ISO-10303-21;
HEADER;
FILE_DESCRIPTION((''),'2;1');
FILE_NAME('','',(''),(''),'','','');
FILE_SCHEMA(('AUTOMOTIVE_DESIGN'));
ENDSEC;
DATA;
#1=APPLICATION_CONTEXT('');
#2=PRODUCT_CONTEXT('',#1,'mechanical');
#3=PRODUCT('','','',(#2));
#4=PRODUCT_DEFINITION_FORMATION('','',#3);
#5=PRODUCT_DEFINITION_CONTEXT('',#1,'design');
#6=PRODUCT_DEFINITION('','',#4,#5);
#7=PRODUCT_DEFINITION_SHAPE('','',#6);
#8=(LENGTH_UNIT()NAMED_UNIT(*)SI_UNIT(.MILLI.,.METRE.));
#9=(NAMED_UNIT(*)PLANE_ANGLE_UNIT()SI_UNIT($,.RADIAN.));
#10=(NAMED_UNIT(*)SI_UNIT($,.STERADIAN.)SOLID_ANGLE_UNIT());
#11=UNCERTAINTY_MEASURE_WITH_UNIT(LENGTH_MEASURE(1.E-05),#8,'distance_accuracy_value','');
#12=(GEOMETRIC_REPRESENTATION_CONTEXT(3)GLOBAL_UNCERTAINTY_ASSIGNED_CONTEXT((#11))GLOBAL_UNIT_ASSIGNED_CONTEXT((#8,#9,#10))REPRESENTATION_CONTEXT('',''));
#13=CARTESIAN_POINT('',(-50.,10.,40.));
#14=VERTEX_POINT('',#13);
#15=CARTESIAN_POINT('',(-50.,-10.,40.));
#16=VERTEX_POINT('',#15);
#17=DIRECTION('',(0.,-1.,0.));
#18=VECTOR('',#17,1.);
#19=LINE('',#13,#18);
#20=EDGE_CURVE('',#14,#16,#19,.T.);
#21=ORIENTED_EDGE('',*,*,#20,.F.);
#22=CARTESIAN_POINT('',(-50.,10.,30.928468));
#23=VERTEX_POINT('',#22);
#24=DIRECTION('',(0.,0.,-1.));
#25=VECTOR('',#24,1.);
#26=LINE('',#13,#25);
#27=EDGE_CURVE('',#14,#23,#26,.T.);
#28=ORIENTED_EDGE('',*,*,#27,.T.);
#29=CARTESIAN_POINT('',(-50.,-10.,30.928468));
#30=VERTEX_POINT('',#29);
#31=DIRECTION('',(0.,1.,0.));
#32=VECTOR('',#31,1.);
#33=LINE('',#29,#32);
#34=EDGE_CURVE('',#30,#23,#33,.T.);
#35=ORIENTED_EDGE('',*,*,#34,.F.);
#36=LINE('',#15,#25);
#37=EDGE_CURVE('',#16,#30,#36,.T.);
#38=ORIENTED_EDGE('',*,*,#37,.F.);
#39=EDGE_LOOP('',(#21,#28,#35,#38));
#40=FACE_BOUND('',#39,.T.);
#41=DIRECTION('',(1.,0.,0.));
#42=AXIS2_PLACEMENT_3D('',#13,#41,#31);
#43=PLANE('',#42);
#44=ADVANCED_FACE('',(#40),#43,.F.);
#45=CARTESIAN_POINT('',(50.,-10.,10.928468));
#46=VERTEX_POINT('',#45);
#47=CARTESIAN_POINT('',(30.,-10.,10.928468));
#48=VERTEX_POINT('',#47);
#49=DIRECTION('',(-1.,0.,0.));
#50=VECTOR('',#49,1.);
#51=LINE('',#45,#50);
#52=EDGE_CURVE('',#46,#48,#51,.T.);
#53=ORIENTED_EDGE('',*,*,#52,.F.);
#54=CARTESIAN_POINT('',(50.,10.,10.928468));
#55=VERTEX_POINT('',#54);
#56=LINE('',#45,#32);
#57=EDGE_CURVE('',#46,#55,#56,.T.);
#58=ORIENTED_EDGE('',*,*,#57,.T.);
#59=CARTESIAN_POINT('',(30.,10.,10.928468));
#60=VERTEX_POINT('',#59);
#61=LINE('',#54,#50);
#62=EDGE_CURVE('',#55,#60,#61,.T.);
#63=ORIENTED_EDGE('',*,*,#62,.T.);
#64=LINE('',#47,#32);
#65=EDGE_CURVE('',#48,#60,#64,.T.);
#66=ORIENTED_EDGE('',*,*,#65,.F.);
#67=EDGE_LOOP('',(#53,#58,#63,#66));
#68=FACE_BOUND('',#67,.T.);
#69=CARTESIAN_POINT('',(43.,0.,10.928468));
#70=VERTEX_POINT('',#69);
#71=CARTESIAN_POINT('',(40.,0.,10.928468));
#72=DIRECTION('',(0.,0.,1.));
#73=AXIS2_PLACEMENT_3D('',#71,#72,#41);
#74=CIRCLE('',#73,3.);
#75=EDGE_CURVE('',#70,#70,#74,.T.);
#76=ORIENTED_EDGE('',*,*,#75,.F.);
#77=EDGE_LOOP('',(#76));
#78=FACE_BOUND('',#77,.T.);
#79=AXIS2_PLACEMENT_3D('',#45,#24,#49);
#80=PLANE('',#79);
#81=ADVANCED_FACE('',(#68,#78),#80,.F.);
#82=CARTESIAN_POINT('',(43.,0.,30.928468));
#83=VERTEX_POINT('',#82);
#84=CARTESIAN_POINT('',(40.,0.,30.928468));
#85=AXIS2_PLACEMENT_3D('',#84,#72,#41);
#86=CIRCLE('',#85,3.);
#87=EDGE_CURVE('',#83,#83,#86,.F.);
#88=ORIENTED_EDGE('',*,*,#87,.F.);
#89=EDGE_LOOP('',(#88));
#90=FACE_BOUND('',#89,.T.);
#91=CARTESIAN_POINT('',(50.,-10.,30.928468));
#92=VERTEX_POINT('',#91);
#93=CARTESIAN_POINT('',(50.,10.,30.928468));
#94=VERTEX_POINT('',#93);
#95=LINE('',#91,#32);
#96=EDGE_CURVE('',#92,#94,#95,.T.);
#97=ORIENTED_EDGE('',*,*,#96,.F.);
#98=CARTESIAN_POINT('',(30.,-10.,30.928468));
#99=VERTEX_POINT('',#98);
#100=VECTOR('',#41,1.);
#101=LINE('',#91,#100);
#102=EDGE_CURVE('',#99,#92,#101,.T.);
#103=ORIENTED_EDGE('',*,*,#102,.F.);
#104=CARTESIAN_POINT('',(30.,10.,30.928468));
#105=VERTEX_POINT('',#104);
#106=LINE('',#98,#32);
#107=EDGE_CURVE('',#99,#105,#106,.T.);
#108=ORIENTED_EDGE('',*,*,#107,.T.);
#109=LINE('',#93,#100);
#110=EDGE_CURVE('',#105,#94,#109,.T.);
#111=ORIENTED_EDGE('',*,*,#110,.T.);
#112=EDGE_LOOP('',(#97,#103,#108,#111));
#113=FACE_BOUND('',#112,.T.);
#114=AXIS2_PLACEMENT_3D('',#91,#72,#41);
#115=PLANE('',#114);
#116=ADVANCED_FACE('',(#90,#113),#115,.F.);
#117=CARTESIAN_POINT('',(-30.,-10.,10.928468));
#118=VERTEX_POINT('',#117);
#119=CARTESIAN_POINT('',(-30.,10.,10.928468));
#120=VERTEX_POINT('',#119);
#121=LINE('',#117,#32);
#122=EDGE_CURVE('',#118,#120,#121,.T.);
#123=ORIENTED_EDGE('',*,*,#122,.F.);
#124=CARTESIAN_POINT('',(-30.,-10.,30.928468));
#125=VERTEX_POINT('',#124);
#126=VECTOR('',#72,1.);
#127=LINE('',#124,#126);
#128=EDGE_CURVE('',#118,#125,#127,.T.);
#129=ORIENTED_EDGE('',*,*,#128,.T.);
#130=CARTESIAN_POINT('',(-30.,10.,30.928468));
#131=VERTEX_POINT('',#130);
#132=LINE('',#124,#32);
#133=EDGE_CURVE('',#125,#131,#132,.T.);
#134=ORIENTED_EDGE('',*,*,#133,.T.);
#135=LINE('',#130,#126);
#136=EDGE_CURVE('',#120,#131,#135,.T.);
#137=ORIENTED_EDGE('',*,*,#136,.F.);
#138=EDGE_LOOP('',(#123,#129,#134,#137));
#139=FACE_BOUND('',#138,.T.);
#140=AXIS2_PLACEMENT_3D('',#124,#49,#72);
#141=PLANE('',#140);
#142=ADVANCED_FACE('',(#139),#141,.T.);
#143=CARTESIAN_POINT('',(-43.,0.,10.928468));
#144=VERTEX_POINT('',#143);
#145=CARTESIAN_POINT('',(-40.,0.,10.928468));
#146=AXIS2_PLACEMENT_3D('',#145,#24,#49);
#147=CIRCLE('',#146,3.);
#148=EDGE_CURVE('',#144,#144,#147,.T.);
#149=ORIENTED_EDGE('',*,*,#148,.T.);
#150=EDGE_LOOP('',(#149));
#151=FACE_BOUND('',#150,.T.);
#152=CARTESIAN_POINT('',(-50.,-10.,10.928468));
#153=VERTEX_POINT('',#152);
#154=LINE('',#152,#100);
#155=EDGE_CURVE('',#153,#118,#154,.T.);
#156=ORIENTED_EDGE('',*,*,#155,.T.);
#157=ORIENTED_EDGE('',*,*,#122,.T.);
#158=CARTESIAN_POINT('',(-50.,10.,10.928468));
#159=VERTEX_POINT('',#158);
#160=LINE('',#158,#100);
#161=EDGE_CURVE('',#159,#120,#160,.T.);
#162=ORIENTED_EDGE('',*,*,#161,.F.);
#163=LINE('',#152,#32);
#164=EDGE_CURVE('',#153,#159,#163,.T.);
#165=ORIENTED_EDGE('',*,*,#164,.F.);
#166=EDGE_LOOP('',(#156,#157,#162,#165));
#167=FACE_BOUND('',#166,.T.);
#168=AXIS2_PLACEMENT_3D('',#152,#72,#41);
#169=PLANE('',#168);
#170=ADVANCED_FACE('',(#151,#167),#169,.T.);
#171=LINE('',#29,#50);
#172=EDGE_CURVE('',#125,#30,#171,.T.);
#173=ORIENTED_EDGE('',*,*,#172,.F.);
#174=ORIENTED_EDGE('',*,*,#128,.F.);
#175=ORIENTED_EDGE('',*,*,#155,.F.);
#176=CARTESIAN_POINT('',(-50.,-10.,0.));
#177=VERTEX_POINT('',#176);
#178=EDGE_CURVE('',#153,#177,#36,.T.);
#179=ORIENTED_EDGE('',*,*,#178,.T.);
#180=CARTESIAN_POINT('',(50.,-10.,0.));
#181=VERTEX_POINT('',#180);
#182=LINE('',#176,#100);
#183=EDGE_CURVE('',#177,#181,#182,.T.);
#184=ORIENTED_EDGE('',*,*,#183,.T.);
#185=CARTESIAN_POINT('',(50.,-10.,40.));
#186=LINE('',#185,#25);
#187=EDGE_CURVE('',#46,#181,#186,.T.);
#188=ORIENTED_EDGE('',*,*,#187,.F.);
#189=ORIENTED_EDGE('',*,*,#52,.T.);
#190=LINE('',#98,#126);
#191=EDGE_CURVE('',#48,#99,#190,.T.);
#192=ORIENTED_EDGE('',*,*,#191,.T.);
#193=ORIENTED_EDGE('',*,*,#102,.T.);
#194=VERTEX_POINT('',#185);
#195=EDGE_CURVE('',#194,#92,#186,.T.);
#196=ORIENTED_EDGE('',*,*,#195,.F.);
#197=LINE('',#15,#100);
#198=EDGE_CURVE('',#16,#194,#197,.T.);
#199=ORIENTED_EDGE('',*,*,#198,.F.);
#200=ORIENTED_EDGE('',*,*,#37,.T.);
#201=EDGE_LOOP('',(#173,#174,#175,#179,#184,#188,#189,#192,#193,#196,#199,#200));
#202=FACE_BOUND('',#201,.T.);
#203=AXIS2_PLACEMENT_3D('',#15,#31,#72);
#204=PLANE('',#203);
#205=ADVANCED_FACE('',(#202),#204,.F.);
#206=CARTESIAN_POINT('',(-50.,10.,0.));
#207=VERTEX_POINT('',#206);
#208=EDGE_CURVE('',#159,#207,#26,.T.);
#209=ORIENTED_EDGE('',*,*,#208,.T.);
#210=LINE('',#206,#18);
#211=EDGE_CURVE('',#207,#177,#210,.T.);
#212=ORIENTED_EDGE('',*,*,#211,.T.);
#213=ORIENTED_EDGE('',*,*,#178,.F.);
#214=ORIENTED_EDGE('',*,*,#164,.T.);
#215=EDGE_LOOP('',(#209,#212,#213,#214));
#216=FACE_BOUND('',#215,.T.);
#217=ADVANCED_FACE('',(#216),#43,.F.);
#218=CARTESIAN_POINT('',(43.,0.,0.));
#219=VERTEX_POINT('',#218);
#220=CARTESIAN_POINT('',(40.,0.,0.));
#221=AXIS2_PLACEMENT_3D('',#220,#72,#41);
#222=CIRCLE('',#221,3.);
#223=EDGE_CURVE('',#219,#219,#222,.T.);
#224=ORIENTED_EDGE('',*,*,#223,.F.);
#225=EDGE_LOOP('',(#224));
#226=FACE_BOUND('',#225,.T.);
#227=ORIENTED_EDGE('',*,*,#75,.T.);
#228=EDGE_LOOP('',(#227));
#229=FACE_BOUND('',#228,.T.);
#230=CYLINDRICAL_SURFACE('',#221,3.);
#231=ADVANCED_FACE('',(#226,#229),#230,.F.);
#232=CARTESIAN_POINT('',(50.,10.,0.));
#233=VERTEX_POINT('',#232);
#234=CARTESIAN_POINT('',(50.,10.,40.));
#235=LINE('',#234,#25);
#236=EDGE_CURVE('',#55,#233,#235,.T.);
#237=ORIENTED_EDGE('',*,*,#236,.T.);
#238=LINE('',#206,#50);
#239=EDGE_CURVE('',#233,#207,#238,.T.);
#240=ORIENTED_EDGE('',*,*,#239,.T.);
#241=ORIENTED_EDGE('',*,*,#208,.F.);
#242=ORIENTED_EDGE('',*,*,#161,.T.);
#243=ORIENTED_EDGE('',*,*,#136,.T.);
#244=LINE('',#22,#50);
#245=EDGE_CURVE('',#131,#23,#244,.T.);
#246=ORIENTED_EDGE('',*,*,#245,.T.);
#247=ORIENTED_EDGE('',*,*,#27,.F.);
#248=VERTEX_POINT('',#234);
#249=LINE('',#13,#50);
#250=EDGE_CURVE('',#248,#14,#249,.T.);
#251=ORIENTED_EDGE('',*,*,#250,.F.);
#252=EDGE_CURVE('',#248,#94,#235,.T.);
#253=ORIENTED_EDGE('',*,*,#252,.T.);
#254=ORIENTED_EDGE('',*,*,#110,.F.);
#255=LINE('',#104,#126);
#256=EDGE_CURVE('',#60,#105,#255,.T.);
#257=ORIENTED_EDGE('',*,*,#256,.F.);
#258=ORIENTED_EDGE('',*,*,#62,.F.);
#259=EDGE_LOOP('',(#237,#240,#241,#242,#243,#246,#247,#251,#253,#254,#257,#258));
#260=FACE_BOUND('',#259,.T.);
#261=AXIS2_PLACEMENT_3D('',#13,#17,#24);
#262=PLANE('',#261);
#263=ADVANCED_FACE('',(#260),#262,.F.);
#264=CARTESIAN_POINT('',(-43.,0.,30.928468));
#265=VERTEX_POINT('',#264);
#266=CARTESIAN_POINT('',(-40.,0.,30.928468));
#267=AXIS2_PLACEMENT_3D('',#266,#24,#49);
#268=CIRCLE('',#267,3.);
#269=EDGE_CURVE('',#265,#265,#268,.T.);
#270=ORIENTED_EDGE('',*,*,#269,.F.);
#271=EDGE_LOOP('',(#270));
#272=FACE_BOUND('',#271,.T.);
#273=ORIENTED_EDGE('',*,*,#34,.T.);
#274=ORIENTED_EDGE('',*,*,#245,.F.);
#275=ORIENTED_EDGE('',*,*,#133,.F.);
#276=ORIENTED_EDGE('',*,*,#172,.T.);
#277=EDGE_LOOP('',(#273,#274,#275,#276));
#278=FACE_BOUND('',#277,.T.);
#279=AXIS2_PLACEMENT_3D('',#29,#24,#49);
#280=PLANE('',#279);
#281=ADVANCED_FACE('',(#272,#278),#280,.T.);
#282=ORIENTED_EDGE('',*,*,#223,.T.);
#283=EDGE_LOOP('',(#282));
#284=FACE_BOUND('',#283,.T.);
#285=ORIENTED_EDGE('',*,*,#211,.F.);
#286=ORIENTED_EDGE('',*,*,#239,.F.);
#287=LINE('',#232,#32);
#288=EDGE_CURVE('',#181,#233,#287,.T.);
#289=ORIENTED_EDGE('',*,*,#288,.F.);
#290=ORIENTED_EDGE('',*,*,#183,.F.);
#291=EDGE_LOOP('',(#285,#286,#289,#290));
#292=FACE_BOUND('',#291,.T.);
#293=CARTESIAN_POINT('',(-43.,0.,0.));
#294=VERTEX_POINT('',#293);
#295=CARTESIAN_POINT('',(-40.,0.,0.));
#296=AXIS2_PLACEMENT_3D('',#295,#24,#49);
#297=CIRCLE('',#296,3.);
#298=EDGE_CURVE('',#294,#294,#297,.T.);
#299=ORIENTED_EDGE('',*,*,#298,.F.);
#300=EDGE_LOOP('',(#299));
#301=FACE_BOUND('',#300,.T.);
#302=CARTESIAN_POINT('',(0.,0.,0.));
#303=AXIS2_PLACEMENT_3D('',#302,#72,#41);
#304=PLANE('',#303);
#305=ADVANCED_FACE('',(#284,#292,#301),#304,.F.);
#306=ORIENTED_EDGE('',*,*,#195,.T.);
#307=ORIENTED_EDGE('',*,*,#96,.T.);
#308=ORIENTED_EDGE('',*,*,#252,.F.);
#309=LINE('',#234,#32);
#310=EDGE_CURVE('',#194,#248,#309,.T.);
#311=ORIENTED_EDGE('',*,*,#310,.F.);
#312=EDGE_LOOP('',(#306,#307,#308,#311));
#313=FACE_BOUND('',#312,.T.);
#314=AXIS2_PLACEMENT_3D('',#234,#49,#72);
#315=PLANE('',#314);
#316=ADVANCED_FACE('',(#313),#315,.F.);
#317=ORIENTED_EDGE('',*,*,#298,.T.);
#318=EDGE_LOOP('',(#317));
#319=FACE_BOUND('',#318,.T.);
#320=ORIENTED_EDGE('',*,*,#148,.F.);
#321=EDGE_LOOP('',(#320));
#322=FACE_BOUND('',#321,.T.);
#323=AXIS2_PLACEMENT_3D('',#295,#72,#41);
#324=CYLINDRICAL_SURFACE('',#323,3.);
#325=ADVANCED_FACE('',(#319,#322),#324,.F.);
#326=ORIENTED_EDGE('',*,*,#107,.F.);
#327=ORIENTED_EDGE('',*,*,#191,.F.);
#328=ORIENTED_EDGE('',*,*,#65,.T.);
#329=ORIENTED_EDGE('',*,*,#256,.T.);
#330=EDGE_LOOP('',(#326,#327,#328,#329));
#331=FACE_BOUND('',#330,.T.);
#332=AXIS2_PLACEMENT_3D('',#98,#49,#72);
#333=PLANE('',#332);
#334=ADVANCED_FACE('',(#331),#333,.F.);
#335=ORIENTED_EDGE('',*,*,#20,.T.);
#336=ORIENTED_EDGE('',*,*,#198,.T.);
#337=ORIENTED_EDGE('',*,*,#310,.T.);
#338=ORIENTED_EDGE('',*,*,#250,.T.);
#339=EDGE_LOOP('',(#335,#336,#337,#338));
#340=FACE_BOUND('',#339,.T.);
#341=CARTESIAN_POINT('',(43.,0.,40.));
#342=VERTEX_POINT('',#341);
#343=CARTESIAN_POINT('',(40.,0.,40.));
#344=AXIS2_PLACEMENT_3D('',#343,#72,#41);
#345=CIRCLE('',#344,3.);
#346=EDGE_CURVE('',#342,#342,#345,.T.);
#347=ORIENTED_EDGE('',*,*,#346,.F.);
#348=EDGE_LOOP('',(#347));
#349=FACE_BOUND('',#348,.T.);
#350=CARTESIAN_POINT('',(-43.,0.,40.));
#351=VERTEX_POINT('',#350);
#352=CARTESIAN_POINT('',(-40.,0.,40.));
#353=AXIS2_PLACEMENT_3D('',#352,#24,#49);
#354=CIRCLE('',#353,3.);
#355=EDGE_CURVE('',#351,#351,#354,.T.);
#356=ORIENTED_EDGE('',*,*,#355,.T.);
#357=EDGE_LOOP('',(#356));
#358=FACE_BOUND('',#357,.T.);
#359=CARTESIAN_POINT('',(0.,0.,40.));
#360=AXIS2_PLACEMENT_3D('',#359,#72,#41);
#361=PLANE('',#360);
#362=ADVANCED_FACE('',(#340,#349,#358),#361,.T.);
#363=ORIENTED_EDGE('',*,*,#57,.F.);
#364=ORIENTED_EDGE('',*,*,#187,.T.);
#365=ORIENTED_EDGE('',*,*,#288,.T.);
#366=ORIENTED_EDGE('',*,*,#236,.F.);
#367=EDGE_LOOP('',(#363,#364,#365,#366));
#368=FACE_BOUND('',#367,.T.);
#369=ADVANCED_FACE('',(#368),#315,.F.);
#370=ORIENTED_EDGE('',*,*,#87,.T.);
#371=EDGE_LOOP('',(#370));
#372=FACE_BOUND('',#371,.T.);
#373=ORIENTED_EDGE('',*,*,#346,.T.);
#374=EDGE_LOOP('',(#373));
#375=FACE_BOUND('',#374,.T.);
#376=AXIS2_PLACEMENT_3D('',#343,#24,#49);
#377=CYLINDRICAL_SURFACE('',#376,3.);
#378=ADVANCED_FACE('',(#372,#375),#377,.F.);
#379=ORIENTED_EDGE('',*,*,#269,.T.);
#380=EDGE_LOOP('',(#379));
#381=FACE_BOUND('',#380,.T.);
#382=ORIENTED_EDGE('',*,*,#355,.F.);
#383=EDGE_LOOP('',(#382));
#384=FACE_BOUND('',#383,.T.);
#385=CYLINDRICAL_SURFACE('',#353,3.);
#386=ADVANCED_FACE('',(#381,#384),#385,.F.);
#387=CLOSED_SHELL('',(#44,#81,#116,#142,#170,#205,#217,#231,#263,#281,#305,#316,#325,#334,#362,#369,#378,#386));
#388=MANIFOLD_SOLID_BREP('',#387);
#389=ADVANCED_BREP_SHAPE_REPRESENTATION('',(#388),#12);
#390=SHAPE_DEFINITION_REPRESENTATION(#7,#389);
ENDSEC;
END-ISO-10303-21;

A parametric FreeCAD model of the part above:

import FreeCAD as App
import Part
import Sketcher
Q = App.Units.Quantity

doc = App.newDocument("Part")
params = doc.addObject("Spreadsheet::Sheet", "Params")
for row, (alias, value) in enumerate([
    ("sketch1_width", "100 mm"),
    ("sketch1_height", "20 mm"),
    ("pad1_length", "40 mm"),
    ("sketch2_width", "20 mm"),
    ("sketch3_diameter", "6 mm"),
    ("sketch4_diameter", "6 mm"),
], start=1):
    params.set(f"A{row}", alias)
    params.set(f"B{row}", "=" + value)
    params.setAlias(f"B{row}", alias)

body = doc.addObject("PartDesign::Body", "Body")

sketch1 = doc.addObject("Sketcher::SketchObject", "Sketch")
body.addObject(sketch1)
sketch1.AttachmentSupport = (doc.XY_Plane, [""])
sketch1.MapMode = "FlatFace"
sketch1.addGeometry(Part.LineSegment(App.Vector(-50, 10, 0), App.Vector(-50, -10, 0)), False)
sketch1.addGeometry(Part.LineSegment(App.Vector(-50, -10, 0), App.Vector(50, -10, 0)), False)
sketch1.addGeometry(Part.LineSegment(App.Vector(50, -10, 0), App.Vector(50, 10, 0)), False)
sketch1.addGeometry(Part.LineSegment(App.Vector(50, 10, 0), App.Vector(-50, 10, 0)), False)
sketch1.addConstraint(Sketcher.Constraint("Coincident", 0, 2, 1, 1))
sketch1.addConstraint(Sketcher.Constraint("Coincident", 1, 2, 2, 1))
sketch1.addConstraint(Sketcher.Constraint("Coincident", 2, 2, 3, 1))
sketch1.addConstraint(Sketcher.Constraint("Coincident", 3, 2, 0, 1))
sketch1.addConstraint(Sketcher.Constraint("Vertical", 0))
sketch1.addConstraint(Sketcher.Constraint("Horizontal", 1))
sketch1.addConstraint(Sketcher.Constraint("Vertical", 2))
sketch1.addConstraint(Sketcher.Constraint("Horizontal", 3))
sketch1.addConstraint(Sketcher.Constraint("Symmetric", 0, 2, 2, 2, -1, 1))
sketch1.addConstraint(Sketcher.Constraint("DistanceX", 1, 1, 1, 2, Q("100 mm")))
sketch1.addConstraint(Sketcher.Constraint("DistanceY", 0, 2, 0, 1, Q("20 mm")))
sketch1.setExpression("Constraints[9]", "Params.sketch1_width")
sketch1.setExpression("Constraints[10]", "Params.sketch1_height")
pad1 = doc.addObject("PartDesign::Pad", "Pad")
body.addObject(pad1)
pad1.Profile = sketch1
pad1.setExpression("Length", "Params.pad1_length")

sketch2 = doc.addObject("Sketcher::SketchObject", "Sketch001")
body.addObject(sketch2)
sketch2.AttachmentSupport = (doc.XZ_Plane, [""])
sketch2.MapMode = "FlatFace"
sketch2.AttachmentOffset = App.Placement(App.Vector(0, 0, -10), App.Rotation())
sketch2.addGeometry(Part.LineSegment(App.Vector(50, 31, 0), App.Vector(50, 11, 0)), False)
sketch2.addGeometry(Part.LineSegment(App.Vector(50, 11, 0), App.Vector(30, 11, 0)), False)
sketch2.addGeometry(Part.LineSegment(App.Vector(30, 11, 0), App.Vector(30, 31, 0)), False)
sketch2.addGeometry(Part.LineSegment(App.Vector(30, 31, 0), App.Vector(50, 31, 0)), False)
sketch2.addConstraint(Sketcher.Constraint("Coincident", 0, 2, 1, 1))
sketch2.addConstraint(Sketcher.Constraint("Coincident", 1, 2, 2, 1))
sketch2.addConstraint(Sketcher.Constraint("Coincident", 2, 2, 3, 1))
sketch2.addConstraint(Sketcher.Constraint("Coincident", 3, 2, 0, 1))
sketch2.addConstraint(Sketcher.Constraint("Vertical", 0))
sketch2.addConstraint(Sketcher.Constraint("Horizontal", 1))
sketch2.addConstraint(Sketcher.Constraint("Vertical", 2))
sketch2.addConstraint(Sketcher.Constraint("Horizontal", 3))
sketch2.addConstraint(Sketcher.Constraint("Equal", 3, 0))
sketch2.addConstraint(Sketcher.Constraint("DistanceX", 1, 2, 1, 1, Q("20 mm")))
sketch2.addConstraint(Sketcher.Constraint("DistanceX", -1, 1, 0, 2, Q("50 mm")))
sketch2.addConstraint(Sketcher.Constraint("DistanceY", -1, 1, 0, 2, Q("10.928468 mm")))
sketch2.setExpression("Constraints[9]", "Params.sketch2_width")
pocket1 = doc.addObject("PartDesign::Pocket", "Pocket")
body.addObject(pocket1)
pocket1.Profile = sketch2
pocket1.Type = "ThroughAll"
pocket1.Reversed = True
doc.recompute()

mirrored = doc.addObject("PartDesign::Mirrored", "Mirrored")
body.addObject(mirrored)
mirrored.Originals = [pocket1]
mirrored.MirrorPlane = (doc.YZ_Plane, [""])
body.Tip = mirrored

sketch3 = doc.addObject("Sketcher::SketchObject", "Sketch002")
body.addObject(sketch3)
sketch3.AttachmentSupport = (doc.XY_Plane, [""])
sketch3.MapMode = "FlatFace"
sketch3.AttachmentOffset = App.Placement(App.Vector(0, 0, 10.928468), App.Rotation())
sketch3.addGeometry(Part.Circle(App.Vector(40, 0, 0), App.Vector(0, 0, 1), 3), False)
sketch3.addConstraint(Sketcher.Constraint("PointOnObject", 0, 3, -1))
sketch3.addConstraint(Sketcher.Constraint("Diameter", 0, Q("6 mm")))
sketch3.addConstraint(Sketcher.Constraint("DistanceX", -1, 1, 0, 3, Q("40 mm")))
sketch3.setExpression("Constraints[1]", "Params.sketch3_diameter")
pocket2 = doc.addObject("PartDesign::Pocket", "Pocket001")
body.addObject(pocket2)
pocket2.Profile = sketch3
pocket2.Type = "ThroughAll"
doc.recompute()

mirrored2 = doc.addObject("PartDesign::Mirrored", "Mirrored001")
body.addObject(mirrored2)
mirrored2.Originals = [pocket2]
mirrored2.MirrorPlane = (doc.YZ_Plane, [""])
body.Tip = mirrored2
doc.recompute()

datumplane = doc.addObject("PartDesign::Plane", "DatumPlane")
body.addObject(datumplane)
datumplane.AttachmentSupport = (doc.XY_Plane, [""])
datumplane.MapMode = "FlatFace"
datumplane.AttachmentOffset = App.Placement(App.Vector(0, 0, 20), App.Rotation())
mirrored3 = doc.addObject("PartDesign::Mirrored", "Mirrored002")
body.addObject(mirrored3)
mirrored3.Originals = [pocket2]
mirrored3.MirrorPlane = (datumplane, [""])
body.Tip = mirrored3

sketch4 = doc.addObject("Sketcher::SketchObject", "Sketch003")
body.addObject(sketch4)
sketch4.AttachmentSupport = (doc.XY_Plane, [""])
sketch4.MapMode = "FlatFace"
sketch4.AttachmentOffset = App.Placement(App.Vector(0, 0, 29.071532), App.Rotation())
sketch4.addGeometry(Part.Circle(App.Vector(-40, 0, 0), App.Vector(0, 0, 1), 3), False)
sketch4.addConstraint(Sketcher.Constraint("PointOnObject", 0, 3, -1))
sketch4.addConstraint(Sketcher.Constraint("Diameter", 0, Q("6 mm")))
sketch4.addConstraint(Sketcher.Constraint("DistanceX", 0, 3, -1, 1, Q("40 mm")))
sketch4.setExpression("Constraints[1]", "Params.sketch4_diameter")
pocket3 = doc.addObject("PartDesign::Pocket", "Pocket002")
body.addObject(pocket3)
pocket3.Profile = sketch4
pocket3.Type = "ThroughAll"
pocket3.Reversed = True

doc.recompute()
